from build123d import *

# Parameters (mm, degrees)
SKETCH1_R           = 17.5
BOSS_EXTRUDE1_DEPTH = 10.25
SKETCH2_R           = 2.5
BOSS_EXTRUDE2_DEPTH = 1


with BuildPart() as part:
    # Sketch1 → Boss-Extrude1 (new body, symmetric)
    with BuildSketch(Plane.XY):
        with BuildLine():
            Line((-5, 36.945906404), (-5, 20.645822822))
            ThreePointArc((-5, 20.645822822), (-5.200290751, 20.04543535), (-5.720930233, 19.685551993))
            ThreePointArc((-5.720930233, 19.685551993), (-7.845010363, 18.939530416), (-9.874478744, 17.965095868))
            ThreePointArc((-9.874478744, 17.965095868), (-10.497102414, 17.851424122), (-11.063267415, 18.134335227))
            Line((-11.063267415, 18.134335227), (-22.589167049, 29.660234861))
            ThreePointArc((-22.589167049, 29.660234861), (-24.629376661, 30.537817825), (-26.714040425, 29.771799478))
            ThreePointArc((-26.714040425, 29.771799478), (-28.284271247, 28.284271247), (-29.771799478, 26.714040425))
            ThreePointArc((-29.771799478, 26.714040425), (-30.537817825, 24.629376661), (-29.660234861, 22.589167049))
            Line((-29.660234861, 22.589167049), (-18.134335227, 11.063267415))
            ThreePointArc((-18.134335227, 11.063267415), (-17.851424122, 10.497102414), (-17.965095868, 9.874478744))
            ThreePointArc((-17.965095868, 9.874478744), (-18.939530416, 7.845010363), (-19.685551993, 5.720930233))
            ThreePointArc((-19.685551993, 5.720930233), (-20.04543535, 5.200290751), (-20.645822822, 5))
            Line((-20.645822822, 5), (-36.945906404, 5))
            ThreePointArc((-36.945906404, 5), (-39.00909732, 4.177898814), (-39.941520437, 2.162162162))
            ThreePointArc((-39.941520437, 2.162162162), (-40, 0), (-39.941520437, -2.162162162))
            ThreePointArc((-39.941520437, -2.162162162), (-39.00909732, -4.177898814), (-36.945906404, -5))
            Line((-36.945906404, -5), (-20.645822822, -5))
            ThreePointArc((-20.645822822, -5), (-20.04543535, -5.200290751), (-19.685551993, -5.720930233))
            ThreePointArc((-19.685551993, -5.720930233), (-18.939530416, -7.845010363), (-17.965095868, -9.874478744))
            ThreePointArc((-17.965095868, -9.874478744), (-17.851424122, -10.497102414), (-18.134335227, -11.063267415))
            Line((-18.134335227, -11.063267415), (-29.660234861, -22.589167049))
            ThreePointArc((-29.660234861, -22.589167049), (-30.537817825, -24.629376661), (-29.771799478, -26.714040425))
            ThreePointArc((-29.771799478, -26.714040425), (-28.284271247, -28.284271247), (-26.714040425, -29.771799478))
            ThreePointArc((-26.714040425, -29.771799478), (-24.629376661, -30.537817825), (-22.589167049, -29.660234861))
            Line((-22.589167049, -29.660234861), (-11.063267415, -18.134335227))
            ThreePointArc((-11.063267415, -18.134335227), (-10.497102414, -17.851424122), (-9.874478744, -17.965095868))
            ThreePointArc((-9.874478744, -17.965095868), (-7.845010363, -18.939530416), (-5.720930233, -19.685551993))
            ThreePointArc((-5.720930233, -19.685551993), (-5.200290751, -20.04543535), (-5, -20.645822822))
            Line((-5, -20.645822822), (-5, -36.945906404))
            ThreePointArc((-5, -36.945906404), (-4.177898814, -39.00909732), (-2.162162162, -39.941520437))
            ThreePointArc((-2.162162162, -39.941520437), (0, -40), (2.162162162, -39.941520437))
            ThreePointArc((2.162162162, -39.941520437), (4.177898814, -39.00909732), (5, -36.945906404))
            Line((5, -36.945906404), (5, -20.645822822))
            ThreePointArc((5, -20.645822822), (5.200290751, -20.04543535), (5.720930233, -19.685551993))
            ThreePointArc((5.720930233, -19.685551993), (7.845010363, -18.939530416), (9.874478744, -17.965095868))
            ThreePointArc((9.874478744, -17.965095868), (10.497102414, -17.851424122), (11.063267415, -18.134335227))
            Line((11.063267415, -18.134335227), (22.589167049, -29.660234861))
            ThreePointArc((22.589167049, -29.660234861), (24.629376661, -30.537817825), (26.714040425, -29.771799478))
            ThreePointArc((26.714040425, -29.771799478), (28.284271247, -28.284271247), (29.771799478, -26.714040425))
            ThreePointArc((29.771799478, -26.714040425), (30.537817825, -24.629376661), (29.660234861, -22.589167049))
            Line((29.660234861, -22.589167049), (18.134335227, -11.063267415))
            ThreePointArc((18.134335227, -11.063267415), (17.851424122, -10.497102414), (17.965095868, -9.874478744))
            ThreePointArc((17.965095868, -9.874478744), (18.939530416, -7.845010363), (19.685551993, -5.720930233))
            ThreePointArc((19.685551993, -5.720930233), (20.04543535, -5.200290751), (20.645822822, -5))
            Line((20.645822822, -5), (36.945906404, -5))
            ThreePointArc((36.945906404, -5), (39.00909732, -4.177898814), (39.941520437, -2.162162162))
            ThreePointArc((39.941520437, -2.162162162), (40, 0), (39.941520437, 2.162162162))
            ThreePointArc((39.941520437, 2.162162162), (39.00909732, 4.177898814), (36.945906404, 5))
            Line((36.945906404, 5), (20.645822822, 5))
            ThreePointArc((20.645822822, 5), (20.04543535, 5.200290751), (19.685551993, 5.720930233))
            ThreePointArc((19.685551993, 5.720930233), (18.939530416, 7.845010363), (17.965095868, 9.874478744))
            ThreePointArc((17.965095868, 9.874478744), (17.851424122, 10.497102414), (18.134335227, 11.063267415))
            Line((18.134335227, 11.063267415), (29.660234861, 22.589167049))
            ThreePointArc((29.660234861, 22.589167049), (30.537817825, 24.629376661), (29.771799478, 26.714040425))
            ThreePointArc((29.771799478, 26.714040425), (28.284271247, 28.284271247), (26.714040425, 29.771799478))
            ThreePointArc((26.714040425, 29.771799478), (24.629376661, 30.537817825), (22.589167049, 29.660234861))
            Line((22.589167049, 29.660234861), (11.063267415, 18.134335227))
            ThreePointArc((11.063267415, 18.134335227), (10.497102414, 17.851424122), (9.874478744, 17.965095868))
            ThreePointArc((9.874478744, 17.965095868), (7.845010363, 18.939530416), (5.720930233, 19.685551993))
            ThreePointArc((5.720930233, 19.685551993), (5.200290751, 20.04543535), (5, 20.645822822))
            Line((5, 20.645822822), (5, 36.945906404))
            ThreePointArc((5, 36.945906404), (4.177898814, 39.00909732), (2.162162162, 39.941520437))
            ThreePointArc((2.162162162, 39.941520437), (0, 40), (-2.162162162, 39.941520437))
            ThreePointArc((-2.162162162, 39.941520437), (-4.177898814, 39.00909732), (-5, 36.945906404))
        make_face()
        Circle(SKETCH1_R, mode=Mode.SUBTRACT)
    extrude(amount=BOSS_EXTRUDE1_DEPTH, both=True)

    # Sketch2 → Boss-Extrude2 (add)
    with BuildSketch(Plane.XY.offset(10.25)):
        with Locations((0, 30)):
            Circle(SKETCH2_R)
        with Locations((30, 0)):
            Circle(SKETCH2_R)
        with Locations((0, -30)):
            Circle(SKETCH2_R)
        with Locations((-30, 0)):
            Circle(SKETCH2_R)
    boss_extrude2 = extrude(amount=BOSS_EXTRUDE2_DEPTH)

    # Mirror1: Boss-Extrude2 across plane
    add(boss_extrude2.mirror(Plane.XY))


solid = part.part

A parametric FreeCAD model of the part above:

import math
import FreeCAD as App
import Part
import Sketcher
Q = App.Units.Quantity

doc = App.newDocument("Part")
params = doc.addObject("Spreadsheet::Sheet", "Params")
for row, (alias, value) in enumerate([
    ("sketch1_diameter", "35 mm"),
    ("sketch1_radius", "1 mm"),
    ("sketch1_radius2", "3 mm"),
    ("sketch1_radius3", "40 mm"),
    ("sketch1_radius4", "20.5 mm"),
    ("pad1_length", "20.5 mm"),
    ("sketch2_diameter", "5 mm"),
    ("pad2_length", "1 mm"),
], start=1):
    params.set(f"A{row}", alias)
    params.set(f"B{row}", "=" + value)
    params.setAlias(f"B{row}", alias)

body = doc.addObject("PartDesign::Body", "Body")

sketch1 = doc.addObject("Sketcher::SketchObject", "Sketch")
body.addObject(sketch1)
sketch1.AttachmentSupport = (doc.XY_Plane, [""])
sketch1.MapMode = "FlatFace"
sketch1.addGeometry([
    Part.LineSegment(App.Vector(-5, 36.945906, 0), App.Vector(-5, 20.645823, 0)),
    Part.ArcOfCircle(Part.Circle(App.Vector(-6, 20.645823, 0), App.Vector(0, 0, 1), 1), math.radians(-73.795307), math.radians(0)),
    Part.ArcOfCircle(Part.Circle(App.Vector(0, 0, 0), App.Vector(0, 0, 1), 20.5), math.radians(106.204693), math.radians(118.795307)),
    Part.ArcOfCircle(Part.Circle(App.Vector(-10.356161, 18.841442, 0), App.Vector(0, 0, 1), 1), math.radians(-135), math.radians(-61.204693)),
    Part.LineSegment(App.Vector(-11.063267, 18.134335, 0), App.Vector(-22.589167, 29.660235, 0)),
    Part.ArcOfCircle(Part.Circle(App.Vector(-24.710487, 27.538915, 0), App.Vector(0, 0, 1), 3), math.radians(45), math.radians(131.901421)),
    Part.ArcOfCircle(Part.Circle(App.Vector(0, 0, 0), App.Vector(0, 0, 1), 40), math.radians(131.901421), math.radians(138.098579)),
    Part.ArcOfCircle(Part.Circle(App.Vector(-27.538915, 24.710487, 0), App.Vector(0, 0, 1), 3), math.radians(138.098579), math.radians(225)),
    Part.LineSegment(App.Vector(-29.660235, 22.589167, 0), App.Vector(-18.134335, 11.063267, 0)),
    Part.ArcOfCircle(Part.Circle(App.Vector(-18.841442, 10.356161, 0), App.Vector(0, 0, 1), 1), math.radians(-28.795307), math.radians(45)),
    Part.ArcOfCircle(Part.Circle(App.Vector(0, 0, 0), App.Vector(0, 0, 1), 20.5), math.radians(151.204693), math.radians(163.795307)),
    Part.ArcOfCircle(Part.Circle(App.Vector(-20.645823, 6, 0), App.Vector(0, 0, 1), 1), math.radians(-90), math.radians(-16.204693)),
    Part.LineSegment(App.Vector(-20.645823, 5, 0), App.Vector(-36.945906, 5, 0)),
    Part.ArcOfCircle(Part.Circle(App.Vector(-36.945906, 2, 0), App.Vector(0, 0, 1), 3), math.radians(90), math.radians(176.901421)),
    Part.ArcOfCircle(Part.Circle(App.Vector(0, 0, 0), App.Vector(0, 0, 1), 40), math.radians(176.901421), math.radians(183.098579)),
    Part.ArcOfCircle(Part.Circle(App.Vector(-36.945906, -2, 0), App.Vector(0, 0, 1), 3), math.radians(-176.901421), math.radians(-90)),
    Part.LineSegment(App.Vector(-36.945906, -5, 0), App.Vector(-20.645823, -5, 0)),
    Part.ArcOfCircle(Part.Circle(App.Vector(-20.645823, -6, 0), App.Vector(0, 0, 1), 1), math.radians(16.204693), math.radians(90)),
    Part.ArcOfCircle(Part.Circle(App.Vector(0, 0, 0), App.Vector(0, 0, 1), 20.5), math.radians(-163.795307), math.radians(-151.204693)),
    Part.ArcOfCircle(Part.Circle(App.Vector(-18.841442, -10.356161, 0), App.Vector(0, 0, 1), 1), math.radians(-45), math.radians(28.795307)),
    Part.LineSegment(App.Vector(-18.134335, -11.063267, 0), App.Vector(-29.660235, -22.589167, 0)),
    Part.ArcOfCircle(Part.Circle(App.Vector(-27.538915, -24.710487, 0), App.Vector(0, 0, 1), 3), math.radians(135), math.radians(221.901421)),
    Part.ArcOfCircle(Part.Circle(App.Vector(0, 0, 0), App.Vector(0, 0, 1), 40), math.radians(-138.098579), math.radians(-131.901421)),
    Part.ArcOfCircle(Part.Circle(App.Vector(-24.710487, -27.538915, 0), App.Vector(0, 0, 1), 3), math.radians(-131.901421), math.radians(-45)),
    Part.LineSegment(App.Vector(-22.589167, -29.660235, 0), App.Vector(-11.063267, -18.134335, 0)),
    Part.ArcOfCircle(Part.Circle(App.Vector(-10.356161, -18.841442, 0), App.Vector(0, 0, 1), 1), math.radians(61.204693), math.radians(135)),
    Part.ArcOfCircle(Part.Circle(App.Vector(0, 0, 0), App.Vector(0, 0, 1), 20.5), math.radians(-118.795307), math.radians(-106.204693)),
    Part.ArcOfCircle(Part.Circle(App.Vector(-6, -20.645823, 0), App.Vector(0, 0, 1), 1), math.radians(0), math.radians(73.795307)),
    Part.LineSegment(App.Vector(-5, -20.645823, 0), App.Vector(-5, -36.945906, 0)),
    Part.ArcOfCircle(Part.Circle(App.Vector(-2, -36.945906, 0), App.Vector(0, 0, 1), 3), math.radians(180), math.radians(266.901421)),
    Part.ArcOfCircle(Part.Circle(App.Vector(0, 0, 0), App.Vector(0, 0, 1), 40), math.radians(-93.098579), math.radians(-86.901421)),
    Part.ArcOfCircle(Part.Circle(App.Vector(2, -36.945906, 0), App.Vector(0, 0, 1), 3), math.radians(-86.901421), math.radians(0)),
    Part.LineSegment(App.Vector(5, -36.945906, 0), App.Vector(5, -20.645823, 0)),
    Part.ArcOfCircle(Part.Circle(App.Vector(6, -20.645823, 0), App.Vector(0, 0, 1), 1), math.radians(106.204693), math.radians(180)),
    Part.ArcOfCircle(Part.Circle(App.Vector(0, 0, 0), App.Vector(0, 0, 1), 20.5), math.radians(-73.795307), math.radians(-61.204693)),
    Part.ArcOfCircle(Part.Circle(App.Vector(10.356161, -18.841442, 0), App.Vector(0, 0, 1), 1), math.radians(45), math.radians(118.795307)),
    Part.LineSegment(App.Vector(11.063267, -18.134335, 0), App.Vector(22.589167, -29.660235, 0)),
    Part.ArcOfCircle(Part.Circle(App.Vector(24.710487, -27.538915, 0), App.Vector(0, 0, 1), 3), math.radians(-135), math.radians(-48.098579)),
    Part.ArcOfCircle(Part.Circle(App.Vector(0, 0, 0), App.Vector(0, 0, 1), 40), math.radians(-48.098579), math.radians(-41.901421)),
    Part.ArcOfCircle(Part.Circle(App.Vector(27.538915, -24.710487, 0), App.Vector(0, 0, 1), 3), math.radians(-41.901421), math.radians(45)),
    Part.LineSegment(App.Vector(29.660235, -22.589167, 0), App.Vector(18.134335, -11.063267, 0)),
    Part.ArcOfCircle(Part.Circle(App.Vector(18.841442, -10.356161, 0), App.Vector(0, 0, 1), 1), math.radians(151.204693), math.radians(225)),
    Part.ArcOfCircle(Part.Circle(App.Vector(0, 0, 0), App.Vector(0, 0, 1), 20.5), math.radians(-28.795307), math.radians(-16.204693)),
    Part.ArcOfCircle(Part.Circle(App.Vector(20.645823, -6, 0), App.Vector(0, 0, 1), 1), math.radians(90), math.radians(163.795307)),
    Part.LineSegment(App.Vector(20.645823, -5, 0), App.Vector(36.945906, -5, 0)),
    Part.ArcOfCircle(Part.Circle(App.Vector(36.945906, -2, 0), App.Vector(0, 0, 1), 3), math.radians(-90), math.radians(-3.098579)),
    Part.ArcOfCircle(Part.Circle(App.Vector(0, 0, 0), App.Vector(0, 0, 1), 40), math.radians(-3.098579), math.radians(3.098579)),
    Part.ArcOfCircle(Part.Circle(App.Vector(36.945906, 2, 0), App.Vector(0, 0, 1), 3), math.radians(3.098579), math.radians(90)),
    Part.LineSegment(App.Vector(36.945906, 5, 0), App.Vector(20.645823, 5, 0)),
    Part.ArcOfCircle(Part.Circle(App.Vector(20.645823, 6, 0), App.Vector(0, 0, 1), 1), math.radians(-163.795307), math.radians(-90)),
    Part.ArcOfCircle(Part.Circle(App.Vector(0, 0, 0), App.Vector(0, 0, 1), 20.5), math.radians(16.204693), math.radians(28.795307)),
    Part.ArcOfCircle(Part.Circle(App.Vector(18.841442, 10.356161, 0), App.Vector(0, 0, 1), 1), math.radians(135), math.radians(208.795307)),
    Part.LineSegment(App.Vector(18.134335, 11.063267, 0), App.Vector(29.660235, 22.589167, 0)),
    Part.ArcOfCircle(Part.Circle(App.Vector(27.538915, 24.710487, 0), App.Vector(0, 0, 1), 3), math.radians(-45), math.radians(41.901421)),
    Part.ArcOfCircle(Part.Circle(App.Vector(0, 0, 0), App.Vector(0, 0, 1), 40), math.radians(41.901421), math.radians(48.098579)),
    Part.ArcOfCircle(Part.Circle(App.Vector(24.710487, 27.538915, 0), App.Vector(0, 0, 1), 3), math.radians(48.098579), math.radians(135)),
    Part.LineSegment(App.Vector(22.589167, 29.660235, 0), App.Vector(11.063267, 18.134335, 0)),
    Part.ArcOfCircle(Part.Circle(App.Vector(10.356161, 18.841442, 0), App.Vector(0, 0, 1), 1), math.radians(-118.795307), math.radians(-45)),
    Part.ArcOfCircle(Part.Circle(App.Vector(0, 0, 0), App.Vector(0, 0, 1), 20.5), math.radians(61.204693), math.radians(73.795307)),
    Part.ArcOfCircle(Part.Circle(App.Vector(6, 20.645823, 0), App.Vector(0, 0, 1), 1), math.radians(-180), math.radians(-106.204693)),
    Part.LineSegment(App.Vector(5, 20.645823, 0), App.Vector(5, 36.945906, 0)),
    Part.ArcOfCircle(Part.Circle(App.Vector(2, 36.945906, 0), App.Vector(0, 0, 1), 3), math.radians(0), math.radians(86.901421)),
    Part.ArcOfCircle(Part.Circle(App.Vector(0, 0, 0), App.Vector(0, 0, 1), 40), math.radians(86.901421), math.radians(93.098579)),
    Part.ArcOfCircle(Part.Circle(App.Vector(-2, 36.945906, 0), App.Vector(0, 0, 1), 3), math.radians(93.098579), math.radians(180)),
    Part.Circle(App.Vector(0, 0, 0), App.Vector(0, 0, 1), 17.5),
], False)
sketch1.addConstraint([
    Sketcher.Constraint("Tangent", 0, 2, 1, 2),
    Sketcher.Constraint("Tangent", 1, 1, 2, 1),
    Sketcher.Constraint("Tangent", 2, 2, 3, 2),
    Sketcher.Constraint("Tangent", 3, 1, 4, 1),
    Sketcher.Constraint("Tangent", 4, 2, 5, 1),
    Sketcher.Constraint("Tangent", 5, 2, 6, 1),
    Sketcher.Constraint("Tangent", 6, 2, 7, 1),
    Sketcher.Constraint("Tangent", 7, 2, 8, 1),
    Sketcher.Constraint("Tangent", 8, 2, 9, 2),
    Sketcher.Constraint("Tangent", 9, 1, 10, 1),
    Sketcher.Constraint("Tangent", 10, 2, 11, 2),
    Sketcher.Constraint("Tangent", 11, 1, 12, 1),
    Sketcher.Constraint("Tangent", 12, 2, 13, 1),
    Sketcher.Constraint("Tangent", 13, 2, 14, 1),
    Sketcher.Constraint("Tangent", 14, 2, 15, 1),
    Sketcher.Constraint("Tangent", 15, 2, 16, 1),
    Sketcher.Constraint("Tangent", 16, 2, 17, 2),
    Sketcher.Constraint("Tangent", 17, 1, 18, 1),
    Sketcher.Constraint("Tangent", 18, 2, 19, 2),
    Sketcher.Constraint("Tangent", 19, 1, 20, 1),
    Sketcher.Constraint("Tangent", 20, 2, 21, 1),
    Sketcher.Constraint("Tangent", 21, 2, 22, 1),
    Sketcher.Constraint("Tangent", 22, 2, 23, 1),
    Sketcher.Constraint("Tangent", 23, 2, 24, 1),
    Sketcher.Constraint("Tangent", 24, 2, 25, 2),
    Sketcher.Constraint("Tangent", 25, 1, 26, 1),
    Sketcher.Constraint("Tangent", 26, 2, 27, 2),
    Sketcher.Constraint("Tangent", 27, 1, 28, 1),
    Sketcher.Constraint("Tangent", 28, 2, 29, 1),
    Sketcher.Constraint("Tangent", 29, 2, 30, 1),
    Sketcher.Constraint("Tangent", 30, 2, 31, 1),
    Sketcher.Constraint("Tangent", 31, 2, 32, 1),
    Sketcher.Constraint("Tangent", 32, 2, 33, 2),
    Sketcher.Constraint("Tangent", 33, 1, 34, 1),
    Sketcher.Constraint("Tangent", 34, 2, 35, 2),
    Sketcher.Constraint("Tangent", 35, 1, 36, 1),
    Sketcher.Constraint("Tangent", 36, 2, 37, 1),
    Sketcher.Constraint("Tangent", 37, 2, 38, 1),
    Sketcher.Constraint("Tangent", 38, 2, 39, 1),
    Sketcher.Constraint("Tangent", 39, 2, 40, 1),
    Sketcher.Constraint("Tangent", 40, 2, 41, 2),
    Sketcher.Constraint("Tangent", 41, 1, 42, 1),
    Sketcher.Constraint("Tangent", 42, 2, 43, 2),
    Sketcher.Constraint("Tangent", 43, 1, 44, 1),
    Sketcher.Constraint("Tangent", 44, 2, 45, 1),
    Sketcher.Constraint("Tangent", 45, 2, 46, 1),
    Sketcher.Constraint("Tangent", 46, 2, 47, 1),
    Sketcher.Constraint("Tangent", 47, 2, 48, 1),
    Sketcher.Constraint("Tangent", 48, 2, 49, 2),
    Sketcher.Constraint("Tangent", 49, 1, 50, 1),
    Sketcher.Constraint("Tangent", 50, 2, 51, 2),
    Sketcher.Constraint("Tangent", 51, 1, 52, 1),
    Sketcher.Constraint("Tangent", 52, 2, 53, 1),
    Sketcher.Constraint("Tangent", 53, 2, 54, 1),
    Sketcher.Constraint("Tangent", 54, 2, 55, 1),
    Sketcher.Constraint("Tangent", 55, 2, 56, 1),
    Sketcher.Constraint("Tangent", 56, 2, 57, 2),
    Sketcher.Constraint("Tangent", 57, 1, 58, 1),
    Sketcher.Constraint("Tangent", 58, 2, 59, 2),
    Sketcher.Constraint("Tangent", 59, 1, 60, 1),
    Sketcher.Constraint("Tangent", 60, 2, 61, 1),
    Sketcher.Constraint("Tangent", 61, 2, 62, 1),
    Sketcher.Constraint("Tangent", 62, 2, 63, 1),
    Sketcher.Constraint("Tangent", 63, 2, 0, 1),
    Sketcher.Constraint("Vertical", 0),
    Sketcher.Constraint("Horizontal", 12),
    Sketcher.Constraint("Horizontal", 16),
    Sketcher.Constraint("Vertical", 28),
    Sketcher.Constraint("Vertical", 32),
    Sketcher.Constraint("Horizontal", 44),
    Sketcher.Constraint("Horizontal", 48),
    Sketcher.Constraint("Vertical", 60),
    Sketcher.Constraint("Coincident", 2, 3, -1, 1),
    Sketcher.Constraint("Coincident", 6, 3, -1, 1),
    Sketcher.Constraint("Coincident", 10, 3, -1, 1),
    Sketcher.Constraint("Coincident", 14, 3, -1, 1),
    Sketcher.Constraint("Coincident", 18, 3, -1, 1),
    Sketcher.Constraint("Coincident", 22, 3, -1, 1),
    Sketcher.Constraint("Coincident", 26, 3, -1, 1),
    Sketcher.Constraint("Coincident", 30, 3, -1, 1),
    Sketcher.Constraint("Coincident", 34, 3, -1, 1),
    Sketcher.Constraint("Coincident", 38, 3, -1, 1),
    Sketcher.Constraint("Coincident", 42, 3, -1, 1),
    Sketcher.Constraint("Coincident", 46, 3, -1, 1),
    Sketcher.Constraint("Coincident", 50, 3, -1, 1),
    Sketcher.Constraint("Coincident", 54, 3, -1, 1),
    Sketcher.Constraint("Coincident", 58, 3, -1, 1),
    Sketcher.Constraint("Coincident", 62, 3, -1, 1),
    Sketcher.Constraint("Coincident", 64, 3, -1, 1),
    Sketcher.Constraint("Equal", 1, 3),
    Sketcher.Constraint("Equal", 5, 7),
    Sketcher.Constraint("Equal", 3, 9),
    Sketcher.Constraint("Equal", 2, 10),
    Sketcher.Constraint("Equal", 9, 11),
    Sketcher.Constraint("Equal", 7, 13),
    Sketcher.Constraint("Equal", 6, 14),
    Sketcher.Constraint("Equal", 13, 15),
    Sketcher.Constraint("Equal", 11, 17),
    Sketcher.Constraint("Equal", 10, 18),
    Sketcher.Constraint("Equal", 17, 19),
    Sketcher.Constraint("Equal", 15, 21),
    Sketcher.Constraint("Equal", 14, 22),
    Sketcher.Constraint("Equal", 21, 23),
    Sketcher.Constraint("Equal", 19, 25),
    Sketcher.Constraint("Equal", 18, 26),
    Sketcher.Constraint("Equal", 25, 27),
    Sketcher.Constraint("Equal", 23, 29),
    Sketcher.Constraint("Equal", 22, 30),
    Sketcher.Constraint("Equal", 29, 31),
    Sketcher.Constraint("Equal", 27, 33),
    Sketcher.Constraint("Equal", 26, 34),
    Sketcher.Constraint("Equal", 33, 35),
    Sketcher.Constraint("Equal", 31, 37),
    Sketcher.Constraint("Equal", 30, 38),
    Sketcher.Constraint("Equal", 37, 39),
    Sketcher.Constraint("Equal", 35, 41),
    Sketcher.Constraint("Equal", 34, 42),
    Sketcher.Constraint("Equal", 41, 43),
    Sketcher.Constraint("Equal", 39, 45),
    Sketcher.Constraint("Equal", 38, 46),
    Sketcher.Constraint("Equal", 45, 47),
    Sketcher.Constraint("Equal", 43, 49),
    Sketcher.Constraint("Equal", 42, 50),
    Sketcher.Constraint("Equal", 49, 51),
    Sketcher.Constraint("Equal", 47, 53),
    Sketcher.Constraint("Equal", 46, 54),
    Sketcher.Constraint("Equal", 53, 55),
    Sketcher.Constraint("Equal", 51, 57),
    Sketcher.Constraint("Equal", 50, 58),
    Sketcher.Constraint("Equal", 57, 59),
    Sketcher.Constraint("Equal", 55, 61),
    Sketcher.Constraint("Equal", 54, 62),
    Sketcher.Constraint("Equal", 61, 63),
    Sketcher.Constraint("Symmetric", 3, 1, 35, 1, -1, 1),
    Sketcher.Constraint("Symmetric", 7, 2, 39, 2, -1, 1),
    Sketcher.Constraint("Symmetric", 19, 1, 51, 1, -1, 1),
    Sketcher.Constraint("Symmetric", 23, 2, 55, 2, -1, 1),
    Sketcher.Constraint("Symmetric", 24, 2, 35, 1, -2),
    Sketcher.Constraint("Symmetric", 20, 2, 39, 2, -2),
    Sketcher.Constraint("Parallel", 4, 8),
    Sketcher.Constraint("Perpendicular", 8, 20),
    Sketcher.Constraint("Horizontal", 29, 3, 31, 3),
    Sketcher.Constraint("Horizontal", 17, 3, 43, 3),
    Sketcher.Constraint("Horizontal", 13, 3, 47, 3),
    Sketcher.Constraint("Horizontal", 1, 3, 59, 3),
    Sketcher.Constraint("Vertical", 13, 3, 15, 3),
    Sketcher.Constraint("Vertical", 1, 3, 27, 3),
    Sketcher.Constraint("Equal", 48, 0),
    Sketcher.Constraint("Equal", 4, 8),
    Sketcher.Constraint("Diameter", 64, Q("35 mm")),
    Sketcher.Constraint("Radius", 1, Q("1 mm")),
    Sketcher.Constraint("Radius", 5, Q("3 mm")),
    Sketcher.Constraint("Radius", 6, Q("40 mm")),
    Sketcher.Constraint("Radius", 2, Q("20.5 mm")),
    Sketcher.Constraint("DistanceX", 1, 3, -1, 1, Q("6 mm")),
    Sketcher.Constraint("DistanceY", -1, 1, 5, 2, Q("29.771799 mm")),
])
sketch1.setExpression("Constraints[149]", "Params.sketch1_diameter")
sketch1.setExpression("Constraints[150]", "Params.sketch1_radius")
sketch1.setExpression("Constraints[151]", "Params.sketch1_radius2")
sketch1.setExpression("Constraints[152]", "Params.sketch1_radius3")
sketch1.setExpression("Constraints[153]", "Params.sketch1_radius4")
pad1 = doc.addObject("PartDesign::Pad", "Pad")
body.addObject(pad1)
pad1.Profile = sketch1
pad1.setExpression("Length", "Params.pad1_length")
pad1.Midplane = True

sketch2 = doc.addObject("Sketcher::SketchObject", "Sketch001")
body.addObject(sketch2)
sketch2.AttachmentSupport = (doc.XY_Plane, [""])
sketch2.MapMode = "FlatFace"
sketch2.AttachmentOffset = App.Placement(App.Vector(0, 0, 10.25), App.Rotation())
sketch2.addGeometry([
    Part.Circle(App.Vector(0, 30, 0), App.Vector(0, 0, 1), 2.5),
    Part.Circle(App.Vector(30, 0, 0), App.Vector(0, 0, 1), 2.5),
    Part.Circle(App.Vector(0, -30, 0), App.Vector(0, 0, 1), 2.5),
    Part.Circle(App.Vector(-30, 0, 0), App.Vector(0, 0, 1), 2.5),
], False)
sketch2.addConstraint([
    Sketcher.Constraint("Equal", 0, 1),
    Sketcher.Constraint("Equal", 1, 2),
    Sketcher.Constraint("Equal", 2, 3),
    Sketcher.Constraint("Symmetric", 0, 3, 2, 3, -1, 1),
    Sketcher.Constraint("Symmetric", 1, 3, 3, 3, -1, 1),
    Sketcher.Constraint("PointOnObject", 0, 3, -2),
    Sketcher.Constraint("PointOnObject", 1, 3, -1),
    Sketcher.Constraint("Diameter", 0, Q("5 mm")),
    Sketcher.Constraint("DistanceY", -1, 1, 0, 3, Q("30 mm")),
    Sketcher.Constraint("DistanceX", -1, 1, 1, 3, Q("30 mm")),
])
sketch2.setExpression("Constraints[7]", "Params.sketch2_diameter")
pad2 = doc.addObject("PartDesign::Pad", "Pad001")
body.addObject(pad2)
pad2.Profile = sketch2
pad2.setExpression("Length", "Params.pad2_length")
doc.recompute()

mirrored = doc.addObject("PartDesign::Mirrored", "Mirrored")
body.addObject(mirrored)
mirrored.Originals = [pad2]
mirrored.MirrorPlane = (doc.XY_Plane, [""])
body.Tip = mirrored

doc.recompute()
